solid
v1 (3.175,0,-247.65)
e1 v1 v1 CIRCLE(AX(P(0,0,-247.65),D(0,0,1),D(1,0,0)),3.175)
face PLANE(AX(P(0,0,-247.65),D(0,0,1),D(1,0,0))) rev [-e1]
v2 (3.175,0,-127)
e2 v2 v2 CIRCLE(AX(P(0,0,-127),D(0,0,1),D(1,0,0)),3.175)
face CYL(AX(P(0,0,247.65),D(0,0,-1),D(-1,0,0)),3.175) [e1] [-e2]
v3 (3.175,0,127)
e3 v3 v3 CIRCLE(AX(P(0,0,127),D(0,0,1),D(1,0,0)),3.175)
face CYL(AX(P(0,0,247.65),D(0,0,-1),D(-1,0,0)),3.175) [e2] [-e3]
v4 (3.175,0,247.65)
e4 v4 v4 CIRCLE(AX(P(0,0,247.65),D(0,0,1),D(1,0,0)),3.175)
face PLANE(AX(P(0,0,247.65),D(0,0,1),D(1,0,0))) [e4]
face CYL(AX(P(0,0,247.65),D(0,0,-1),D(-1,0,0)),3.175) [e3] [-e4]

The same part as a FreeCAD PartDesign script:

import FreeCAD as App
import Part
import Sketcher
Q = App.Units.Quantity

doc = App.newDocument("Part")
body = doc.addObject("PartDesign::Body", "Body")

# Sketch on XY plane
sketch1 = body.newObject("Sketcher::SketchObject", "Sketch")
sketch1.AttachmentSupport = (doc.getObject("XY_Plane"), [""])
sketch1.MapMode = "FlatFace"
sketch1.addGeometry(Part.Circle(App.Vector(0, 0, 0), App.Vector(0, 0, 1), 3.2), False)
sketch1.addConstraint([
    Sketcher.Constraint("Coincident", 0, 3, -1, 1),
    Sketcher.Constraint("Diameter", 0, Q("0.25 in")),
])
pad1 = body.newObject("PartDesign::Pad", "Pad")
pad1.Profile = sketch1
pad1.Length = Q("19.5 in")
pad1.Midplane = True

doc.recompute()
